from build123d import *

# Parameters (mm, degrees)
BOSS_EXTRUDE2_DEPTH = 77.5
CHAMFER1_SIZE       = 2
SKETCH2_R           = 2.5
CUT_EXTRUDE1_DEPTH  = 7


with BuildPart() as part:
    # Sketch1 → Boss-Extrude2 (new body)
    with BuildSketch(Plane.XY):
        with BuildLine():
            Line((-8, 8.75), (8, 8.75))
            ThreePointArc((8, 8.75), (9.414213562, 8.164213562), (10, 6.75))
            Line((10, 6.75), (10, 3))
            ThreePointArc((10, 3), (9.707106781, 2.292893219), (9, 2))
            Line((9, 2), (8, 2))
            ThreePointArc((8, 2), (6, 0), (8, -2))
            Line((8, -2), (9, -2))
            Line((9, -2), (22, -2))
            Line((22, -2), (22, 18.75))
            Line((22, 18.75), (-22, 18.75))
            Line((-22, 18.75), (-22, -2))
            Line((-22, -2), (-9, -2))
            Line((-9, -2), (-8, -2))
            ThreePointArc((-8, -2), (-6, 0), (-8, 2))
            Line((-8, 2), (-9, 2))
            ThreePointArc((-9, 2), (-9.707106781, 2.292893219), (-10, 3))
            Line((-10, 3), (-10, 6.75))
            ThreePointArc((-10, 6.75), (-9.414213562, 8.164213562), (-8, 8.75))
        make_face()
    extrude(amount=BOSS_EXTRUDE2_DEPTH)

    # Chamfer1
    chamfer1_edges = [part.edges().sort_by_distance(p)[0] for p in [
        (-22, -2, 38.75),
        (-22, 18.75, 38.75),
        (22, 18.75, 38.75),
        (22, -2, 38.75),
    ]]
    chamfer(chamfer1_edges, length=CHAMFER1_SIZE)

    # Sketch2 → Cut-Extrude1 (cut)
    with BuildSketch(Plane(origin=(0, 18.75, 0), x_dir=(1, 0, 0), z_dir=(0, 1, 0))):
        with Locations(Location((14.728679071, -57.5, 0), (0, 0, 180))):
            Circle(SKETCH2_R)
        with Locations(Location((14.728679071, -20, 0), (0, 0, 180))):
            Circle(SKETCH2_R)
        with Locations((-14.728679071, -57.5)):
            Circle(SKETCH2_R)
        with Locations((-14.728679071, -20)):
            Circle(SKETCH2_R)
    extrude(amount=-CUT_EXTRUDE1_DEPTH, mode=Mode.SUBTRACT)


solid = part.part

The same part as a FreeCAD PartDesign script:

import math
import FreeCAD as App
import Part
import Sketcher
from FreeCAD import Vector


def edges_at(feature, points):
    """Names of the edges that pass closest to the given points."""
    edges = feature.Shape.Edges
    near = lambda p: min(range(len(edges)), key=lambda i: edges[i].distToShape(Part.Vertex(*p))[0])
    return sorted({f"Edge{near(p) + 1}" for p in points})

doc = App.newDocument("Part")
body = doc.addObject("PartDesign::Body", "Body")

# Sketch on XY plane
sketch1 = doc.addObject("Sketcher::SketchObject", "Sketch")
body.addObject(sketch1)
sketch1.AttachmentSupport = (doc.XY_Plane, [""])
sketch1.MapMode = "FlatFace"
sketch1.addGeometry([
    Part.LineSegment(Vector(-8, 8.75, 0), Vector(8, 8.75, 0)),  # 0
    Part.ArcOfCircle(Part.Circle(Vector(8, 6.75, 0), Vector(0, 0, 1), 2), math.radians(0), math.radians(90)),  # 1
    Part.LineSegment(Vector(10, 6.75, 0), Vector(10, 3, 0)),  # 2
    Part.ArcOfCircle(Part.Circle(Vector(9, 3, 0), Vector(0, 0, 1), 1), math.radians(-90), math.radians(0)),  # 3
    Part.LineSegment(Vector(9, 2, 0), Vector(8, 2, 0)),  # 4
    Part.ArcOfCircle(Part.Circle(Vector(8, 0, 0), Vector(0, 0, 1), 2), math.radians(90), math.radians(270)),  # 5
    Part.LineSegment(Vector(8, -2, 0), Vector(22, -2, 0)),  # 6
    Part.LineSegment(Vector(22, -2, 0), Vector(22, 18.75, 0)),  # 7
    Part.LineSegment(Vector(22, 18.75, 0), Vector(-22, 18.75, 0)),  # 8
    Part.LineSegment(Vector(-22, 18.75, 0), Vector(-22, -2, 0)),  # 9
    Part.LineSegment(Vector(-22, -2, 0), Vector(-8, -2, 0)),  # 10
    Part.ArcOfCircle(Part.Circle(Vector(-8, 0, 0), Vector(0, 0, 1), 2), math.radians(-90), math.radians(90)),  # 11
    Part.LineSegment(Vector(-8, 2, 0), Vector(-9, 2, 0)),  # 12
    Part.ArcOfCircle(Part.Circle(Vector(-9, 3, 0), Vector(0, 0, 1), 1), math.radians(-180), math.radians(-90)),  # 13
    Part.LineSegment(Vector(-10, 3, 0), Vector(-10, 6.75, 0)),  # 14
    Part.ArcOfCircle(Part.Circle(Vector(-8, 6.75, 0), Vector(0, 0, 1), 2), math.radians(90), math.radians(180)),  # 15
], False)
sketch1.addConstraint([
    Sketcher.Constraint("Tangent", 0, 2, 1, 2),
    Sketcher.Constraint("Tangent", 1, 1, 2, 1),
    Sketcher.Constraint("Tangent", 2, 2, 3, 2),
    Sketcher.Constraint("Tangent", 3, 1, 4, 1),
    Sketcher.Constraint("Tangent", 4, 2, 5, 1),
    Sketcher.Constraint("Tangent", 5, 2, 6, 1),
    Sketcher.Constraint("Coincident", 6, 2, 7, 1),
    Sketcher.Constraint("Coincident", 7, 2, 8, 1),
    Sketcher.Constraint("Coincident", 8, 2, 9, 1),
    Sketcher.Constraint("Coincident", 9, 2, 10, 1),
    Sketcher.Constraint("Tangent", 10, 2, 11, 1),
    Sketcher.Constraint("Tangent", 11, 2, 12, 1),
    Sketcher.Constraint("Tangent", 12, 2, 13, 2),
    Sketcher.Constraint("Tangent", 13, 1, 14, 1),
    Sketcher.Constraint("Tangent", 14, 2, 15, 2),
    Sketcher.Constraint("Tangent", 15, 1, 0, 1),
    Sketcher.Constraint("Horizontal", 0),
    Sketcher.Constraint("Vertical", 2),
    Sketcher.Constraint("Horizontal", 4),
    Sketcher.Constraint("Horizontal", 6),
    Sketcher.Constraint("Vertical", 7),
    Sketcher.Constraint("Horizontal", 8),
    Sketcher.Constraint("Vertical", 9),
    Sketcher.Constraint("Horizontal", 10),
    Sketcher.Constraint("Horizontal", 12),
    Sketcher.Constraint("Vertical", 14),
    Sketcher.Constraint("Equal", 1, 5),
    Sketcher.Constraint("Equal", 5, 11),
    Sketcher.Constraint("Equal", 3, 13),
    Sketcher.Constraint("Equal", 11, 15),
    Sketcher.Constraint("Symmetric", 5, 3, 11, 3, -1, 1),
    Sketcher.Constraint("Symmetric", 3, 3, 13, 3, -2),
    Sketcher.Constraint("Vertical", 1, 3, 5, 3),
    Sketcher.Constraint("Equal", 6, 10),
    Sketcher.Constraint("Radius", 1, 2.0),
    Sketcher.Constraint("Radius", 3, 1.0),
    Sketcher.Constraint("DistanceX", 0, 1, 0, 2, 16.0),
    Sketcher.Constraint("DistanceX", 6, 1, 6, 2, 14.0),
    Sketcher.Constraint("DistanceY", 1, 1, 7, 2, 12.0),
    Sketcher.Constraint("DistanceY", 2, 2, 2, 1, 3.75),
])
pad1 = doc.addObject("PartDesign::Pad", "Pad")
body.addObject(pad1)
pad1.Profile = sketch1
pad1.Length = 77.5
doc.recompute()

chamfer = doc.addObject("PartDesign::Chamfer", "Chamfer")
body.addObject(chamfer)
chamfer.Base = (pad1, edges_at(pad1, [
    (-22, -2, 38.75),
    (-22, 18.75, 38.75),
    (22, 18.75, 38.75),
    (22, -2, 38.75),
]))
chamfer.Size = 2

# Sketch on XZ plane
sketch2 = doc.addObject("Sketcher::SketchObject", "Sketch001")
body.addObject(sketch2)
sketch2.AttachmentSupport = (doc.XZ_Plane, [""])
sketch2.MapMode = "FlatFace"
sketch2.AttachmentOffset = App.Placement(Vector(0, 0, -18.75), App.Rotation())
sketch2.addGeometry([
    Part.Circle(Vector(14.728679, 57.5, 0), Vector(0, 0, 1), 2.5),
    Part.Circle(Vector(14.728679, 20, 0), Vector(0, 0, 1), 2.5),
    Part.Circle(Vector(-14.728679, 57.5, 0), Vector(0, 0, 1), 2.5),
    Part.Circle(Vector(-14.728679, 20, 0), Vector(0, 0, 1), 2.5),
], False)
sketch2.addConstraint([
    Sketcher.Constraint("Equal", 0, 1),
    Sketcher.Constraint("Equal", 1, 2),
    Sketcher.Constraint("Equal", 2, 3),
    Sketcher.Constraint("Symmetric", 0, 3, 2, 3, -2),
    Sketcher.Constraint("Symmetric", 1, 3, 3, 3, -2),
    Sketcher.Constraint("Vertical", 0, 3, 1, 3),
    Sketcher.Constraint("Diameter", 0, 5.0),
    Sketcher.Constraint("DistanceY", -1, 1, 1, 3, 20.0),
    Sketcher.Constraint("DistanceY", -1, 1, 0, 3, 57.5),
    Sketcher.Constraint("DistanceX", -1, 1, 0, 3, 14.728679),
])
pocket1 = doc.addObject("PartDesign::Pocket", "Pocket")
body.addObject(pocket1)
pocket1.Profile = sketch2
pocket1.Length = 7
pocket1.Reversed = True

doc.recompute()
